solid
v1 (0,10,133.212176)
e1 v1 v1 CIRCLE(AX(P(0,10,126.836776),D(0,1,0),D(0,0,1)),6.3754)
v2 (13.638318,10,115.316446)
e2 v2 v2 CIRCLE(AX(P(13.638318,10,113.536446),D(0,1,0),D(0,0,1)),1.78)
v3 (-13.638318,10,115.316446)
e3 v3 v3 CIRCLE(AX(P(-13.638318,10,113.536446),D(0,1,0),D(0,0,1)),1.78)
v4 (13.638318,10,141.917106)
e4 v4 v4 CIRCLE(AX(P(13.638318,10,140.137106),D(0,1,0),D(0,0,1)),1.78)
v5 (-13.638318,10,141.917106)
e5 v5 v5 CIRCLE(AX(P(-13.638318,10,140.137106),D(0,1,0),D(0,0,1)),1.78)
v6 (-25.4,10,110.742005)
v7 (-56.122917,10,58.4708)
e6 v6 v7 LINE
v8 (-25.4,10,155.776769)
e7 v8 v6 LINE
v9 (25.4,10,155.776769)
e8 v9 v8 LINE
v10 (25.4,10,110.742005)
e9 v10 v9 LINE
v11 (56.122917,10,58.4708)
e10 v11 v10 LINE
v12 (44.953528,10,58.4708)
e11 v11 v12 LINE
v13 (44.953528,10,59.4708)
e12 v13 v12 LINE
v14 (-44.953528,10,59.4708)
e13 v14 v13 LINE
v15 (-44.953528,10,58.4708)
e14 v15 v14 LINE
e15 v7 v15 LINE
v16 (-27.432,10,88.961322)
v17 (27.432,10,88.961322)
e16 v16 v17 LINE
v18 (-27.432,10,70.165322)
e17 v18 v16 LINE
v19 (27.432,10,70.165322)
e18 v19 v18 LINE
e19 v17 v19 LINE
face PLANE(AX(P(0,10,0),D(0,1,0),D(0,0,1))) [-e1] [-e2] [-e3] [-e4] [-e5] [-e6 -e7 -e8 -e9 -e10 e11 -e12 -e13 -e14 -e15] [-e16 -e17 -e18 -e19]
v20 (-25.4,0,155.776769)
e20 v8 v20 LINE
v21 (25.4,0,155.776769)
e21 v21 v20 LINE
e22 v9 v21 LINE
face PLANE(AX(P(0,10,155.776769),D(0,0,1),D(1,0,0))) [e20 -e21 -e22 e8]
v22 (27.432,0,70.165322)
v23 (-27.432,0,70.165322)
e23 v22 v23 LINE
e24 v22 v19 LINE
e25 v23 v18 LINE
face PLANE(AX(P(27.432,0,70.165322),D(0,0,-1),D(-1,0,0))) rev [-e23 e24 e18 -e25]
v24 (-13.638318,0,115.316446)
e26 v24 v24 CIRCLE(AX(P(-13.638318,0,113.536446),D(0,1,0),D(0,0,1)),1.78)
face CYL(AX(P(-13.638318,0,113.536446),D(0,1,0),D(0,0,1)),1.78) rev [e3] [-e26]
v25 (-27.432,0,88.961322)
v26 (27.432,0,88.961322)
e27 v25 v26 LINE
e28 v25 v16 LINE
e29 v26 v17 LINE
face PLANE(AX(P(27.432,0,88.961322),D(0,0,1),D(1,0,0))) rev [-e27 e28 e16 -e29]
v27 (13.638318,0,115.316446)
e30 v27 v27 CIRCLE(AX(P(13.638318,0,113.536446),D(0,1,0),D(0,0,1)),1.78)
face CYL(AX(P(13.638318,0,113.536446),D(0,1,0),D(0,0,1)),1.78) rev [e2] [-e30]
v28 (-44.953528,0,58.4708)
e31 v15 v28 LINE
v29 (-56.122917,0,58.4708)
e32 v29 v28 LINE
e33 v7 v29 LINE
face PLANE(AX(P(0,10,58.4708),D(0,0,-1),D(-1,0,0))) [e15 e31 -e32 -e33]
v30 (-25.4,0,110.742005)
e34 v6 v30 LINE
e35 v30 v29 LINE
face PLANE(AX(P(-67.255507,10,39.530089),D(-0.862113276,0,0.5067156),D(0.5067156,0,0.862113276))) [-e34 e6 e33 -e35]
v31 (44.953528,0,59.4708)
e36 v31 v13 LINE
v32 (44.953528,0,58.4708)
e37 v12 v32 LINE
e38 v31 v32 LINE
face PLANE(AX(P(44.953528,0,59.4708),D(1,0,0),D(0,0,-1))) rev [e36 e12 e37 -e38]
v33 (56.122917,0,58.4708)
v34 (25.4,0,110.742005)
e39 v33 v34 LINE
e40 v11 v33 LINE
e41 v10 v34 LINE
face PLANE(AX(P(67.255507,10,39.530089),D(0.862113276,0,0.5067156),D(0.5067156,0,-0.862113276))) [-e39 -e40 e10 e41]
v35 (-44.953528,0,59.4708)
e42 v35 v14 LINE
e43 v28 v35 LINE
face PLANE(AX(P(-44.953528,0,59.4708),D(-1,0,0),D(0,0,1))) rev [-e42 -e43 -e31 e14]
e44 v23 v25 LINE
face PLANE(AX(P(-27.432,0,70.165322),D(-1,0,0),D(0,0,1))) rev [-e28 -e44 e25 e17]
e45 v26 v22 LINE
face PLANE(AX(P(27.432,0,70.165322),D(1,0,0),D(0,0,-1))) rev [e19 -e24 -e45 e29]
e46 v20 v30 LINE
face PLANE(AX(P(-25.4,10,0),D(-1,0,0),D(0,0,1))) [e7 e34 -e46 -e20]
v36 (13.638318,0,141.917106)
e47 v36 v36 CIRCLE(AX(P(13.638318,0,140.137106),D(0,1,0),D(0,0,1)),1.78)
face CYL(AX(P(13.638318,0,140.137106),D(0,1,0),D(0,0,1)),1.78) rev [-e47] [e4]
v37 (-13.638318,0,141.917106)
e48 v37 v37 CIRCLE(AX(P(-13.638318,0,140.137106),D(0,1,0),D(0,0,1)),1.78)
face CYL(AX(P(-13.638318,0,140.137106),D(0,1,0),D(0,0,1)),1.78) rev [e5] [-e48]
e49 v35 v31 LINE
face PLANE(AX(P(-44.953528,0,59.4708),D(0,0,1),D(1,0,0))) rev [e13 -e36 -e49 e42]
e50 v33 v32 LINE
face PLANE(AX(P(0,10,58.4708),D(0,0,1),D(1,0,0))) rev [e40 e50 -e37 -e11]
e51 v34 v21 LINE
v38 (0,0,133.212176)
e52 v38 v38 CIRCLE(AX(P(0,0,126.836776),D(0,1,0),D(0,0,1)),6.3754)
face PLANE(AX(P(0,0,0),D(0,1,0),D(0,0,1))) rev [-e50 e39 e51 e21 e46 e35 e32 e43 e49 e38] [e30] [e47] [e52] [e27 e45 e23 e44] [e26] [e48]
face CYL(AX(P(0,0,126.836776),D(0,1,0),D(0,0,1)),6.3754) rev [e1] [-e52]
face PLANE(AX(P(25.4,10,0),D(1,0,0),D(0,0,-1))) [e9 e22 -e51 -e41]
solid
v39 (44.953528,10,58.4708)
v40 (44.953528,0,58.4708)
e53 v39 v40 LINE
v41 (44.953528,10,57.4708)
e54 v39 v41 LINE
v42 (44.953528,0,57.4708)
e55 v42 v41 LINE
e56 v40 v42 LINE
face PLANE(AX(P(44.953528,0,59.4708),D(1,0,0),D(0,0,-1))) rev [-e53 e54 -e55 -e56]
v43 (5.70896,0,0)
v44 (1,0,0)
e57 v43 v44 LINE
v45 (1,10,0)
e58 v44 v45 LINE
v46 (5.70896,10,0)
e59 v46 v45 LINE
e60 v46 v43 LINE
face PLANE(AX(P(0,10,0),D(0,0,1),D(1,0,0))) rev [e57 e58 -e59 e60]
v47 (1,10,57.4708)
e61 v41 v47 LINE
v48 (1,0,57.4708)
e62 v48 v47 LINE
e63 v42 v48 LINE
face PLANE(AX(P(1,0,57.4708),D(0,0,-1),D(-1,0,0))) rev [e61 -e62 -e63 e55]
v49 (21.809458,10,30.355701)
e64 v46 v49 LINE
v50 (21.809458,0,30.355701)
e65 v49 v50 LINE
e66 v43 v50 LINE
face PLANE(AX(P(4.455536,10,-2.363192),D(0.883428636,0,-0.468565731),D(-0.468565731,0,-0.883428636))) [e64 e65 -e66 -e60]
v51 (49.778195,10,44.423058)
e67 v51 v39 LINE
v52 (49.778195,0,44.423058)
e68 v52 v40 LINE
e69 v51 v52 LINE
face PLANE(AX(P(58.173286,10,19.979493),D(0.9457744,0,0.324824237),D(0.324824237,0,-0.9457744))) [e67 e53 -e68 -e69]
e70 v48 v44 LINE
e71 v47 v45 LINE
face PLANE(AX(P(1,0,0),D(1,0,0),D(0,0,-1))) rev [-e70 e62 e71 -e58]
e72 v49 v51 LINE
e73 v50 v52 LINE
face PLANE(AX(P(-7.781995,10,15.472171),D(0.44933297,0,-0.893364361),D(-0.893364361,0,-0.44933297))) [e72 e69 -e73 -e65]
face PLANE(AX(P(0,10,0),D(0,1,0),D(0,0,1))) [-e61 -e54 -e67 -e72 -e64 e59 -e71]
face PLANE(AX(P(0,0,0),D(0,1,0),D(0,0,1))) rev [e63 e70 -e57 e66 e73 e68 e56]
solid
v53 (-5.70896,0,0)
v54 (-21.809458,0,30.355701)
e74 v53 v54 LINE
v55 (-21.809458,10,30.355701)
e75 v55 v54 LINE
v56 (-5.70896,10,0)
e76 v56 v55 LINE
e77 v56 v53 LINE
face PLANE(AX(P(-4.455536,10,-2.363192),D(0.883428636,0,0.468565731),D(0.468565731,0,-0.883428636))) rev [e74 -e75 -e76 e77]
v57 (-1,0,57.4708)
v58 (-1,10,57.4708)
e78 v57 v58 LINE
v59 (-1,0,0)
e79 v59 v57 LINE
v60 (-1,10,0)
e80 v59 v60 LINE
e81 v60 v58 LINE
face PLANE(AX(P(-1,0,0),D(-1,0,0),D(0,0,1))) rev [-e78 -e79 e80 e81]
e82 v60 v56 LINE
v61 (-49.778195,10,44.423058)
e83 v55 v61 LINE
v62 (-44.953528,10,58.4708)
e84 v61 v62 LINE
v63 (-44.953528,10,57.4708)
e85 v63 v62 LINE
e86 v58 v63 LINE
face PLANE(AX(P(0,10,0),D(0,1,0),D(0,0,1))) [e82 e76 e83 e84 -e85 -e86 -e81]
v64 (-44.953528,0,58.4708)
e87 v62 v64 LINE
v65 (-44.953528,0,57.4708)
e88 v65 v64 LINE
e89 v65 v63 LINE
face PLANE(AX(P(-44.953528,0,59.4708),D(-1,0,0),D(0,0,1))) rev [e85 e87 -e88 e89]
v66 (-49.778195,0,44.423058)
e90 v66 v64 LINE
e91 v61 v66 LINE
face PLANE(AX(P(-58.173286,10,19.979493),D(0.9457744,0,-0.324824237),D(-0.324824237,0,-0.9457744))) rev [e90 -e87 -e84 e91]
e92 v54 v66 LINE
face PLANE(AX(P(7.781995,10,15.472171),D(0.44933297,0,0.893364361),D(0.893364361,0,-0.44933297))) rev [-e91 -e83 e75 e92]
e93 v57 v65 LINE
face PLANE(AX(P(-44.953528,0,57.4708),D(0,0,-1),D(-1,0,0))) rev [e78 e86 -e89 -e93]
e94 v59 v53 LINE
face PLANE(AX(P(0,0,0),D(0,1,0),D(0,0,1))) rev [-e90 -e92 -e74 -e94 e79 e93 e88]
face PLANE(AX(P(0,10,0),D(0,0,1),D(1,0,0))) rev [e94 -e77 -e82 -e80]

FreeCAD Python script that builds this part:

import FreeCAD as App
import Part
import Sketcher
Q = App.Units.Quantity

doc = App.newDocument("Part")
params = doc.addObject("Spreadsheet::Sheet", "Params")
for row, (alias, value) in enumerate([
    ("sketch1_width", "2 in"),
    ("pad1_length", "10 mm"),
    ("pocket1_length", "10 mm"),
    ("sketch3_diameter", "0.502 in"),
    ("pocket2_length", "10 mm"),
    ("sketch4_width", "2.16 in"),
    ("sketch4_height", "0.74 in"),
    ("pocket3_length", "10 mm"),
], start=1):
    params.set(f"A{row}", alias)
    params.set(f"B{row}", "=" + value)
    params.setAlias(f"B{row}", alias)

body = doc.addObject("PartDesign::Body", "Body")
body.AllowCompound = True

# Sketch on XZ plane
sketch1 = body.newObject("Sketcher::SketchObject", "Sketch")
sketch1.AttachmentSupport = (doc.getObject("XZ_Plane"), [""])
sketch1.MapMode = "FlatFace"
sketch1.addGeometry(Part.LineSegment(App.Vector(22, 30, 0), App.Vector(6, 0, 0)), False)
sketch1.addGeometry(Part.LineSegment(App.Vector(6, 0, 0), App.Vector(-6, 0, 0)), False)
sketch1.addGeometry(Part.LineSegment(App.Vector(-6, 0, 0), App.Vector(-22, 30, 0)), False)
sketch1.addGeometry(Part.LineSegment(App.Vector(-22, 30, 0), App.Vector(-50, 44, 0)), False)
sketch1.addGeometry(Part.LineSegment(App.Vector(-50, 44, 0), App.Vector(-45, 58, 0)), False)
sketch1.addGeometry(Part.LineSegment(App.Vector(-45, 58, 0), App.Vector(-56, 58, 0)), False)
sketch1.addGeometry(Part.LineSegment(App.Vector(-56, 58, 0), App.Vector(-25, 111, 0)), False)
sketch1.addGeometry(Part.LineSegment(App.Vector(-25, 111, 0), App.Vector(-25, 156, 0)), False)
sketch1.addGeometry(Part.LineSegment(App.Vector(-25, 156, 0), App.Vector(25, 156, 0)), False)
sketch1.addGeometry(Part.LineSegment(App.Vector(25, 156, 0), App.Vector(25, 111, 0)), False)
sketch1.addGeometry(Part.LineSegment(App.Vector(25, 111, 0), App.Vector(56, 58, 0)), False)
sketch1.addGeometry(Part.LineSegment(App.Vector(56, 58, 0), App.Vector(45, 58, 0)), False)
sketch1.addGeometry(Part.LineSegment(App.Vector(45, 58, 0), App.Vector(50, 44, 0)), False)
sketch1.addGeometry(Part.LineSegment(App.Vector(50, 44, 0), App.Vector(22, 30, 0)), False)
sketch1.addConstraint(Sketcher.Constraint("Coincident", 0, 2, 1, 1))
sketch1.addConstraint(Sketcher.Constraint("Coincident", 1, 2, 2, 1))
sketch1.addConstraint(Sketcher.Constraint("Coincident", 2, 2, 3, 1))
sketch1.addConstraint(Sketcher.Constraint("Coincident", 3, 2, 4, 1))
sketch1.addConstraint(Sketcher.Constraint("Coincident", 4, 2, 5, 1))
sketch1.addConstraint(Sketcher.Constraint("Coincident", 5, 2, 6, 1))
sketch1.addConstraint(Sketcher.Constraint("Coincident", 6, 2, 7, 1))
sketch1.addConstraint(Sketcher.Constraint("Coincident", 7, 2, 8, 1))
sketch1.addConstraint(Sketcher.Constraint("Coincident", 8, 2, 9, 1))
sketch1.addConstraint(Sketcher.Constraint("Coincident", 9, 2, 10, 1))
sketch1.addConstraint(Sketcher.Constraint("Coincident", 10, 2, 11, 1))
sketch1.addConstraint(Sketcher.Constraint("Coincident", 11, 2, 12, 1))
sketch1.addConstraint(Sketcher.Constraint("Coincident", 12, 2, 13, 1))
sketch1.addConstraint(Sketcher.Constraint("Coincident", 13, 2, 0, 1))
sketch1.addConstraint(Sketcher.Constraint("Horizontal", 1))
sketch1.addConstraint(Sketcher.Constraint("Horizontal", 5))
sketch1.addConstraint(Sketcher.Constraint("Vertical", 7))
sketch1.addConstraint(Sketcher.Constraint("Horizontal", 8))
sketch1.addConstraint(Sketcher.Constraint("Vertical", 9))
sketch1.addConstraint(Sketcher.Constraint("Horizontal", 11))
sketch1.addConstraint(Sketcher.Constraint("Symmetric", 0, 2, 1, 2, -1, 1))
sketch1.addConstraint(Sketcher.Constraint("Symmetric", 6, 2, 9, 2, -2))
sketch1.addConstraint(Sketcher.Constraint("Symmetric", 5, 2, 10, 2, -2))
sketch1.addConstraint(Sketcher.Constraint("Symmetric", 3, 2, 12, 2, -2))
sketch1.addConstraint(Sketcher.Constraint("Symmetric", 2, 2, 13, 2, -2))
sketch1.addConstraint(Sketcher.Constraint("Equal", 5, 11))
sketch1.addConstraint(Sketcher.Constraint("DistanceX", 8, 1, 8, 2, Q("2 in")))
sketch1.addConstraint(Sketcher.Constraint("DistanceY", -1, 1, 4, 2, Q("2.302 in")))
sketch1.addConstraint(Sketcher.Constraint("Distance", 3, 31.3072))
sketch1.addConstraint(Sketcher.Constraint("DistanceX", 1, 2, 1, 1, 11.41792))
sketch1.addConstraint(Sketcher.Constraint("DistanceX", 5, 2, 5, 1, 11.16939))
sketch1.addConstraint(Sketcher.Constraint("DistanceY", -1, 1, 2, 2, 30.355701))
sketch1.addConstraint(Sketcher.Constraint("DistanceX", 2, 2, 1, 2, 16.100498))
sketch1.addConstraint(Sketcher.Constraint("Distance", 6, 60.631481))
sketch1.addConstraint(Sketcher.Constraint("DistanceY", 7, 1, 7, 2, 45.034764))
sketch1.addConstraint(Sketcher.Constraint("DistanceY", -1, 1, 3, 2, 44.423058))
sketch1.addConstraint(Sketcher.Constraint("DistanceY", -1, 1, 7, 2, 155.776769))
sketch1.setExpression("Constraints[26]", "Params.sketch1_width")
pad1 = body.newObject("PartDesign::Pad", "Pad")
pad1.Profile = sketch1
pad1.setExpression("Length", "Params.pad1_length")
pad1.Reversed = True

# Sketch on XZ plane
sketch2 = body.newObject("Sketcher::SketchObject", "Sketch001")
sketch2.AttachmentSupport = (doc.getObject("XZ_Plane"), [""])
sketch2.MapMode = "FlatFace"
sketch2.AttachmentOffset = App.Placement(App.Vector(0, 0, -10), App.Rotation())
sketch2.addGeometry(Part.LineSegment(App.Vector(-1, 0, 0), App.Vector(-1, 57.5, 0)), False)
sketch2.addGeometry(Part.LineSegment(App.Vector(-1, 57.5, 0), App.Vector(-45, 57.5, 0)), False)
sketch2.addGeometry(Part.LineSegment(App.Vector(-45, 57.5, 0), App.Vector(-45, 59.5, 0)), False)
sketch2.addGeometry(Part.LineSegment(App.Vector(-45, 59.5, 0), App.Vector(45, 59.5, 0)), False)
sketch2.addGeometry(Part.LineSegment(App.Vector(45, 59.5, 0), App.Vector(45, 57.5, 0)), False)
sketch2.addGeometry(Part.LineSegment(App.Vector(45, 57.5, 0), App.Vector(1, 57.5, 0)), False)
sketch2.addGeometry(Part.LineSegment(App.Vector(1, 57.5, 0), App.Vector(1, 0, 0)), False)
sketch2.addGeometry(Part.LineSegment(App.Vector(1, 0, 0), App.Vector(-1, 0, 0)), False)
sketch2.addConstraint(Sketcher.Constraint("Coincident", 0, 2, 1, 1))
sketch2.addConstraint(Sketcher.Constraint("Coincident", 1, 2, 2, 1))
sketch2.addConstraint(Sketcher.Constraint("Coincident", 2, 2, 3, 1))
sketch2.addConstraint(Sketcher.Constraint("Coincident", 3, 2, 4, 1))
sketch2.addConstraint(Sketcher.Constraint("Coincident", 4, 2, 5, 1))
sketch2.addConstraint(Sketcher.Constraint("Coincident", 5, 2, 6, 1))
sketch2.addConstraint(Sketcher.Constraint("Coincident", 6, 2, 7, 1))
sketch2.addConstraint(Sketcher.Constraint("Coincident", 7, 2, 0, 1))
sketch2.addConstraint(Sketcher.Constraint("Vertical", 0))
sketch2.addConstraint(Sketcher.Constraint("Horizontal", 1))
sketch2.addConstraint(Sketcher.Constraint("Vertical", 2))
sketch2.addConstraint(Sketcher.Constraint("Horizontal", 3))
sketch2.addConstraint(Sketcher.Constraint("Vertical", 4))
sketch2.addConstraint(Sketcher.Constraint("Horizontal", 5))
sketch2.addConstraint(Sketcher.Constraint("Vertical", 6))
sketch2.addConstraint(Sketcher.Constraint("Horizontal", 7))
sketch2.addConstraint(Sketcher.Constraint("Symmetric", 6, 2, 7, 2, -1, 1))
sketch2.addConstraint(Sketcher.Constraint("Symmetric", 1, 2, 4, 2, -2))
sketch2.addConstraint(Sketcher.Constraint("Equal", 7, 2))
sketch2.addConstraint(Sketcher.Constraint("DistanceX", 7, 2, 7, 1, 2.0))
sketch2.addConstraint(Sketcher.Constraint("DistanceY", 0, 1, 0, 2, 57.4708))
sketch2.addConstraint(Sketcher.Constraint("DistanceX", 1, 2, 1, 1, 43.953528))
pocket1 = body.newObject("PartDesign::Pocket", "Pocket")
pocket1.Profile = sketch2
pocket1.setExpression("Length", "Params.pocket1_length")
pocket1.Reversed = True

# Sketch on XZ plane
sketch3 = body.newObject("Sketcher::SketchObject", "Sketch002")
sketch3.AttachmentSupport = (doc.getObject("XZ_Plane"), [""])
sketch3.MapMode = "FlatFace"
sketch3.AttachmentOffset = App.Placement(App.Vector(0, 0, -10), App.Rotation())
sketch3.addGeometry(Part.Circle(App.Vector(-13.6, 140.1, 0), App.Vector(0, 0, 1), 1.8), False)
sketch3.addGeometry(Part.Circle(App.Vector(13.6, 140.1, 0), App.Vector(0, 0, 1), 1.8), False)
sketch3.addGeometry(Part.Circle(App.Vector(13.6, 113.5, 0), App.Vector(0, 0, 1), 1.8), False)
sketch3.addGeometry(Part.Circle(App.Vector(-13.6, 113.5, 0), App.Vector(0, 0, 1), 1.8), False)
sketch3.addGeometry(Part.Circle(App.Vector(0, 126.8, 0), App.Vector(0, 0, 1), 6.4), False)
sketch3.addConstraint(Sketcher.Constraint("Equal", 0, 1))
sketch3.addConstraint(Sketcher.Constraint("Equal", 1, 2))
sketch3.addConstraint(Sketcher.Constraint("Equal", 2, 3))
sketch3.addConstraint(Sketcher.Constraint("Symmetric", 0, 3, 1, 3, -2))
sketch3.addConstraint(Sketcher.Constraint("Symmetric", 2, 3, 3, 3, -2))
sketch3.addConstraint(Sketcher.Constraint("PointOnObject", 4, 3, -2))
sketch3.addConstraint(Sketcher.Constraint("Vertical", 1, 3, 2, 3))
sketch3.addConstraint(Sketcher.Constraint("Diameter", 4, Q("0.502 in")))
sketch3.addConstraint(Sketcher.Constraint("Diameter", 0, 3.56))
sketch3.addConstraint(Sketcher.Constraint("DistanceY", 2, 3, 1, 3, 26.60066))
sketch3.addConstraint(Sketcher.Constraint("DistanceY", 4, 3, 0, 3, 13.30033))
sketch3.addConstraint(Sketcher.Constraint("DistanceX", 0, 3, -1, 1, 13.638318))
sketch3.addConstraint(Sketcher.Constraint("DistanceY", -1, 1, 0, 3, 140.137106))
sketch3.setExpression("Constraints[7]", "Params.sketch3_diameter")
pocket2 = body.newObject("PartDesign::Pocket", "Pocket001")
pocket2.Profile = sketch3
pocket2.setExpression("Length", "Params.pocket2_length")
pocket2.Reversed = True

# Sketch on XZ plane
sketch4 = body.newObject("Sketcher::SketchObject", "Sketch003")
sketch4.AttachmentSupport = (doc.getObject("XZ_Plane"), [""])
sketch4.MapMode = "FlatFace"
sketch4.AttachmentOffset = App.Placement(App.Vector(0, 0, -10), App.Rotation())
sketch4.addGeometry(Part.LineSegment(App.Vector(-27, 70, 0), App.Vector(-27, 89, 0)), False)
sketch4.addGeometry(Part.LineSegment(App.Vector(-27, 89, 0), App.Vector(27, 89, 0)), False)
sketch4.addGeometry(Part.LineSegment(App.Vector(27, 89, 0), App.Vector(27, 70, 0)), False)
sketch4.addGeometry(Part.LineSegment(App.Vector(27, 70, 0), App.Vector(-27, 70, 0)), False)
sketch4.addConstraint(Sketcher.Constraint("Coincident", 0, 2, 1, 1))
sketch4.addConstraint(Sketcher.Constraint("Coincident", 1, 2, 2, 1))
sketch4.addConstraint(Sketcher.Constraint("Coincident", 2, 2, 3, 1))
sketch4.addConstraint(Sketcher.Constraint("Coincident", 3, 2, 0, 1))
sketch4.addConstraint(Sketcher.Constraint("Vertical", 0))
sketch4.addConstraint(Sketcher.Constraint("Horizontal", 1))
sketch4.addConstraint(Sketcher.Constraint("Vertical", 2))
sketch4.addConstraint(Sketcher.Constraint("Horizontal", 3))
sketch4.addConstraint(Sketcher.Constraint("DistanceX", 1, 1, 1, 2, Q("2.16 in")))
sketch4.addConstraint(Sketcher.Constraint("DistanceY", 0, 1, 0, 2, Q("0.74 in")))
sketch4.addConstraint(Sketcher.Constraint("DistanceX", 0, 2, -1, 1, Q("1.08 in")))
sketch4.addConstraint(Sketcher.Constraint("DistanceY", -1, 1, 0, 2, 88.961322))
sketch4.setExpression("Constraints[8]", "Params.sketch4_width")
sketch4.setExpression("Constraints[9]", "Params.sketch4_height")
pocket3 = body.newObject("PartDesign::Pocket", "Pocket002")
pocket3.Profile = sketch4
pocket3.setExpression("Length", "Params.pocket3_length")
pocket3.Reversed = True

doc.recompute()
